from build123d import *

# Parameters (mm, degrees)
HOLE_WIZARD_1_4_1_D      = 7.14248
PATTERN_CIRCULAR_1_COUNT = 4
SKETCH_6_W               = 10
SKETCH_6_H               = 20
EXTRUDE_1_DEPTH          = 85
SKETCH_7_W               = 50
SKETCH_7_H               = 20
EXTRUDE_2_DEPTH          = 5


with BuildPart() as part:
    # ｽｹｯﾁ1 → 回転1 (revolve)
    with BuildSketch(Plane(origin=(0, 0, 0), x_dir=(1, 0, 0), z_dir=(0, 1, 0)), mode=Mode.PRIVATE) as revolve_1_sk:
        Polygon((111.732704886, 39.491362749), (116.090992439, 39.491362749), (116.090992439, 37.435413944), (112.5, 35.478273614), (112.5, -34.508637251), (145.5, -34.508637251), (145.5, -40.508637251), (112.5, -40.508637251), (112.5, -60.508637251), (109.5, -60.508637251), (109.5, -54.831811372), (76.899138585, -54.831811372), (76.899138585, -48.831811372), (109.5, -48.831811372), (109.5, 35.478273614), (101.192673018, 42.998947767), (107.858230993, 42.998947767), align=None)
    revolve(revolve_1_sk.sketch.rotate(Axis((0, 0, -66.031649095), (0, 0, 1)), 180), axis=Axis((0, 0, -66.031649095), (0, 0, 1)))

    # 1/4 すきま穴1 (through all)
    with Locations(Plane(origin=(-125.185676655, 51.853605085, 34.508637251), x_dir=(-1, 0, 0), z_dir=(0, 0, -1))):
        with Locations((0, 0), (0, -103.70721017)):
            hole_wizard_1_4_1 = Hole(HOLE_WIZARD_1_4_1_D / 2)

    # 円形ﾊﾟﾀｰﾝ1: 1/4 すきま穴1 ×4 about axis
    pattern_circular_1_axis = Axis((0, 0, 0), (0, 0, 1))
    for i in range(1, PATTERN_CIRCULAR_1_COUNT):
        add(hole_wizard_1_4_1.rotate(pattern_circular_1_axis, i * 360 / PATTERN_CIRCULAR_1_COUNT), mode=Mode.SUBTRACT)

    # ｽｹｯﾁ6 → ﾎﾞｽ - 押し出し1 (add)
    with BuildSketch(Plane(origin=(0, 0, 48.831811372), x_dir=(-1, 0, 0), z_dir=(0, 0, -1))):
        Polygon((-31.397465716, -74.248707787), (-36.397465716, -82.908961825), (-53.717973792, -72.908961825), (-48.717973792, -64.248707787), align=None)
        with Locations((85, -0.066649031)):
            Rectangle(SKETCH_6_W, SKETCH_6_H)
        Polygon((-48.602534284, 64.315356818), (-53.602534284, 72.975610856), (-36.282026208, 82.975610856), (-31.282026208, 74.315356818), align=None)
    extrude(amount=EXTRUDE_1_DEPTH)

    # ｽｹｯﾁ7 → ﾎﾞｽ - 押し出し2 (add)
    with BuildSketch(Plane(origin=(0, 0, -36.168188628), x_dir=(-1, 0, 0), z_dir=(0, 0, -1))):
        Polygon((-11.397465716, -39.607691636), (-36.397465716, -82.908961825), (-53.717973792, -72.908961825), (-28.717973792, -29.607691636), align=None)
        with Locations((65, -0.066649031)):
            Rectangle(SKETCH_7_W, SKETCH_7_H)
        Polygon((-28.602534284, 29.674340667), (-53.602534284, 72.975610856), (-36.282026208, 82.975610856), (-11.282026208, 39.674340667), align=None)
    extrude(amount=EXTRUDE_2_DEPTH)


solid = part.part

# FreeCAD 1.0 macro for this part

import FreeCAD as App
import Part
import Sketcher

V = App.Vector
Q = App.Units.Quantity


def add_polygon(sketch, points):
    """Adds a closed chain of lines whose ends are joined by coincident constraints."""
    first, n = sketch.GeometryCount, len(points)
    for a, b in zip(points, points[1:] + points[:1]):
        sketch.addGeometry(Part.LineSegment(App.Vector(*a, 0), App.Vector(*b, 0)), False)
    for i in range(n):
        sketch.addConstraint(Sketcher.Constraint("Coincident", first + i, 2, first + (i + 1) % n, 1))

doc = App.newDocument("Part")
body = doc.addObject("PartDesign::Body", "Body")

# Sketch on XZ plane
sketch1 = doc.addObject("Sketcher::SketchObject", "Sketch")
body.addObject(sketch1)
sketch1.AttachmentSupport = (doc.XZ_Plane, [""])
sketch1.MapMode = "FlatFace"
add_polygon(sketch1, [(116.1, -39.5), (111.7, -39.5), (107.9, -43), (101.2, -43), (109.5, -35.5), (109.5, 48.8), (76.9, 48.8), (76.9, 54.8), (109.5, 54.8), (109.5, 60.5), (112.5, 60.5), (112.5, 40.5), (145.5, 40.5), (145.5, 34.5), (112.5, 34.5), (112.5, -35.5), (116.1, -37.4)])  # lines 0-16
sketch1.addConstraint([
    Sketcher.Constraint("Horizontal", 0),
    Sketcher.Constraint("Horizontal", 2),
    Sketcher.Constraint("Vertical", 4),
    Sketcher.Constraint("Horizontal", 5),
    Sketcher.Constraint("Vertical", 6),
    Sketcher.Constraint("Horizontal", 7),
    Sketcher.Constraint("Vertical", 8),
    Sketcher.Constraint("Horizontal", 9),
    Sketcher.Constraint("Vertical", 10),
    Sketcher.Constraint("Horizontal", 11),
    Sketcher.Constraint("Vertical", 12),
    Sketcher.Constraint("Horizontal", 13),
    Sketcher.Constraint("Vertical", 14),
    Sketcher.Constraint("Vertical", 16),
    Sketcher.Constraint("Parallel", 1, 3),
    Sketcher.Constraint("Horizontal", 3, 2, 14, 2),
    Sketcher.Constraint("Vertical", 4, 2, 7, 2),
    Sketcher.Constraint("Vertical", 10, 2, 13, 2),
    Sketcher.Constraint("Equal", 6, 12),
    Sketcher.Constraint("DistanceX", 9, 1, 9, 2, Q("3 mm")),
    Sketcher.Constraint("DistanceX", 11, 1, 11, 2, Q("33 mm")),
    Sketcher.Constraint("DistanceY", 6, 1, 6, 2, Q("6 mm")),
    Sketcher.Constraint("DistanceY", 10, 2, 10, 1, Q("20 mm")),
    Sketcher.Constraint("DistanceX", -1, 1, 3, 2, Q("109.5 mm")),
    Sketcher.Constraint("Distance", 3, Q("11.205901 mm")),
    Sketcher.Constraint("DistanceX", 5, 2, 5, 1, Q("32.600861 mm")),
    Sketcher.Constraint("DistanceY", 14, 2, 14, 1, Q("69.986911 mm")),
    Sketcher.Constraint("DistanceY", 16, 2, 16, 1, Q("2.055949 mm")),
    Sketcher.Constraint("DistanceX", 0, 2, 0, 1, Q("4.358288 mm")),
    Sketcher.Constraint("DistanceX", 2, 2, 2, 1, Q("6.665558 mm")),
    Sketcher.Constraint("DistanceY", 4, 1, 4, 2, Q("84.310085 mm")),
    Sketcher.Constraint("DistanceX", -1, 1, 1, 2, Q("107.858231 mm")),
    Sketcher.Constraint("DistanceY", -1, 1, 4, 2, Q("48.831811 mm")),
    Sketcher.Constraint("DistanceX", 2, 2, 0, 2, Q("10.540032 mm")),
])
revolution = doc.addObject("PartDesign::Revolution", "Revolution")
body.addObject(revolution)
revolution.Profile = sketch1
revolution.ReferenceAxis = (sketch1, ["V_Axis"])
revolution.Angle = 360

# Sketch on XY plane
sketch2 = doc.addObject("Sketcher::SketchObject", "Sketch001")
body.addObject(sketch2)
sketch2.AttachmentSupport = (doc.XY_Plane, [""])
sketch2.MapMode = "FlatFace"
sketch2.AttachmentOffset = App.Placement(V(0, 0, 34.508637), App.Rotation())
sketch2.addGeometry([
    Part.Circle(V(-125.2, 51.9, 0), V(0, 0, 1), 3.6),
    Part.Circle(V(-125.2, -51.9, 0), V(0, 0, 1), 3.6),
], False)
sketch2.addConstraint([
    Sketcher.Constraint("Equal", 0, 1),
    Sketcher.Constraint("Symmetric", 0, 3, 1, 3, -1),
    Sketcher.Constraint("Diameter", 0, Q("7.14248 mm")),
    Sketcher.Constraint("DistanceY", 1, 3, 0, 3, Q("103.70721 mm")),
    Sketcher.Constraint("DistanceX", 0, 3, -1, 1, Q("125.185677 mm")),
])
doc.recompute()
hole = doc.addObject("PartDesign::Hole", "Hole")
body.addObject(hole)
hole.Profile = sketch2
hole.ThreadType = "None"
hole.Diameter = 7.14248
hole.DepthType = "ThroughAll"
hole.Reversed = True
doc.recompute()

polarpattern = doc.addObject("PartDesign::PolarPattern", "PolarPattern")
body.addObject(polarpattern)
polarpattern.Originals = [hole]
polarpattern.Axis = (doc.Z_Axis, [""])
polarpattern.Angle = 360
polarpattern.Occurrences = 4
body.Tip = polarpattern

# Sketch on XY plane
sketch3 = doc.addObject("Sketcher::SketchObject", "Sketch002")
body.addObject(sketch3)
sketch3.AttachmentSupport = (doc.XY_Plane, [""])
sketch3.MapMode = "FlatFace"
sketch3.AttachmentOffset = App.Placement(V(0, 0, 48.831811), App.Rotation())
add_polygon(sketch3, [(36, -83), (31, -74), (49, -64), (54, -73)])  # lines 0-3
add_polygon(sketch3, [(-80, 10), (-80, -10), (-90, -10), (-90, 10)])  # lines 4-7
add_polygon(sketch3, [(54, 73), (49, 64), (31, 74), (36, 83)])  # lines 8-11
sketch3.addConstraint([
    Sketcher.Constraint("Vertical", 4),
    Sketcher.Constraint("Horizontal", 5),
    Sketcher.Constraint("Vertical", 6),
    Sketcher.Constraint("Horizontal", 7),
    Sketcher.Constraint("Perpendicular", 0, 1),
    Sketcher.Constraint("Perpendicular", 1, 2),
    Sketcher.Constraint("Perpendicular", 2, 3),
    Sketcher.Constraint("Perpendicular", 8, 9),
    Sketcher.Constraint("Perpendicular", 9, 10),
    Sketcher.Constraint("Perpendicular", 10, 11),
    Sketcher.Constraint("Equal", 2, 8),
    Sketcher.Constraint("Equal", 3, 9),
    Sketcher.Constraint("DistanceX", 5, 2, 5, 1, Q("10 mm")),
    Sketcher.Constraint("DistanceY", 4, 2, 4, 1, Q("20 mm")),
    Sketcher.Constraint("Angle", 0, Q("120 deg")),
    Sketcher.Constraint("Angle", 8, Q("-120 deg")),
    Sketcher.Constraint("Distance", 0, Q("10 mm")),
    Sketcher.Constraint("Distance", 1, Q("20 mm")),
    Sketcher.Constraint("DistanceX", 4, 2, -1, 1, Q("80 mm")),
    Sketcher.Constraint("DistanceY", 2, 2, -1, 1, Q("72.908962 mm")),
    Sketcher.Constraint("DistanceY", 4, 2, -1, 1, Q("10.066649 mm")),
    Sketcher.Constraint("DistanceY", -1, 1, 10, 2, Q("82.975611 mm")),
    Sketcher.Constraint("DistanceX", 8, 2, 1, 2, Q("0.11544 mm")),
    Sketcher.Constraint("DistanceX", -1, 1, 0, 2, Q("31.397466 mm")),
])
pad1 = doc.addObject("PartDesign::Pad", "Pad")
body.addObject(pad1)
pad1.Profile = sketch3
pad1.Length = 85
pad1.Reversed = True

# Sketch on XY plane
sketch4 = doc.addObject("Sketcher::SketchObject", "Sketch003")
body.addObject(sketch4)
sketch4.AttachmentSupport = (doc.XY_Plane, [""])
sketch4.MapMode = "FlatFace"
sketch4.AttachmentOffset = App.Placement(V(0, 0, -36.168189), App.Rotation())
add_polygon(sketch4, [(36, -83), (11, -40), (29, -30), (54, -73)])  # lines 0-3
add_polygon(sketch4, [(-40, 10), (-40, -10), (-90, -10), (-90, 10)])  # lines 4-7
add_polygon(sketch4, [(54, 73), (29, 30), (11, 40), (36, 83)])  # lines 8-11
sketch4.addConstraint([
    Sketcher.Constraint("Vertical", 4),
    Sketcher.Constraint("Horizontal", 5),
    Sketcher.Constraint("Vertical", 6),
    Sketcher.Constraint("Horizontal", 7),
    Sketcher.Constraint("Perpendicular", 0, 1),
    Sketcher.Constraint("Perpendicular", 1, 2),
    Sketcher.Constraint("Perpendicular", 2, 3),
    Sketcher.Constraint("Perpendicular", 8, 9),
    Sketcher.Constraint("Perpendicular", 9, 10),
    Sketcher.Constraint("Perpendicular", 10, 11),
    Sketcher.Constraint("Equal", 2, 8),
    Sketcher.Constraint("Equal", 3, 9),
    Sketcher.Constraint("DistanceX", 5, 2, 5, 1, Q("50 mm")),
    Sketcher.Constraint("DistanceY", 4, 2, 4, 1, Q("20 mm")),
    Sketcher.Constraint("Angle", 0, Q("120 deg")),
    Sketcher.Constraint("Angle", 8, Q("-120 deg")),
    Sketcher.Constraint("Distance", 0, Q("50 mm")),
    Sketcher.Constraint("Distance", 1, Q("20 mm")),
    Sketcher.Constraint("DistanceX", 4, 2, -1, 1, Q("40 mm")),
    Sketcher.Constraint("DistanceY", 0, 2, -1, 1, Q("39.607692 mm")),
    Sketcher.Constraint("DistanceY", 4, 2, -1, 1, Q("10.066649 mm")),
    Sketcher.Constraint("DistanceY", -1, 1, 8, 2, Q("29.674341 mm")),
    Sketcher.Constraint("DistanceX", 8, 2, 1, 2, Q("0.11544 mm")),
    Sketcher.Constraint("DistanceX", -1, 1, 0, 2, Q("11.397466 mm")),
])
pad2 = doc.addObject("PartDesign::Pad", "Pad001")
body.addObject(pad2)
pad2.Profile = sketch4
pad2.Length = 5
pad2.Reversed = True

doc.recompute()
